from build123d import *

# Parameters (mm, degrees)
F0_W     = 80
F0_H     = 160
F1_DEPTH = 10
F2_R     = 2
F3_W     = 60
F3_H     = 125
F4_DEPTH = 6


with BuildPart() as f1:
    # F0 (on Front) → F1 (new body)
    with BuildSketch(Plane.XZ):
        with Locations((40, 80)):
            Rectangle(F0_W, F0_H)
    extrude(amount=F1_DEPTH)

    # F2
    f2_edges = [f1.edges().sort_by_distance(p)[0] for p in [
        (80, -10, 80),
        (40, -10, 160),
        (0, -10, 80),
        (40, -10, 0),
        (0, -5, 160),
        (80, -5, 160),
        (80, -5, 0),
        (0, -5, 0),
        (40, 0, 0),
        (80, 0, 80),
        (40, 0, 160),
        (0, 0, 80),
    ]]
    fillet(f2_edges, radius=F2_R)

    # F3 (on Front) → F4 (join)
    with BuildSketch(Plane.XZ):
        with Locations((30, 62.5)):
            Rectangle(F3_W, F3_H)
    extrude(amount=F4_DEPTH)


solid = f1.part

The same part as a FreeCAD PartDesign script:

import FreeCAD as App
import Part
import Sketcher


def add_polygon(sketch, points):
    """Adds a closed chain of lines whose ends are joined by coincident constraints."""
    first, n = sketch.GeometryCount, len(points)
    for a, b in zip(points, points[1:] + points[:1]):
        sketch.addGeometry(Part.LineSegment(App.Vector(*a, 0), App.Vector(*b, 0)), False)
    for i in range(n):
        sketch.addConstraint(Sketcher.Constraint("Coincident", first + i, 2, first + (i + 1) % n, 1))

doc = App.newDocument("Part")
body = doc.addObject("PartDesign::Body", "Body")

sketch1 = body.newObject("Sketcher::SketchObject", "Sketch")
sketch1.AttachmentSupport = (doc.getObject("XZ_Plane"), [""])
sketch1.MapMode = "FlatFace"
add_polygon(sketch1, [(0, 160), (0, 0), (80, 0), (80, 160)])
sketch1.addConstraint(Sketcher.Constraint("Vertical", 0))
sketch1.addConstraint(Sketcher.Constraint("Horizontal", 1))
sketch1.addConstraint(Sketcher.Constraint("Vertical", 2))
sketch1.addConstraint(Sketcher.Constraint("Horizontal", 3))
sketch1.addConstraint(Sketcher.Constraint("Coincident", 0, 2, -1, 1))
sketch1.addConstraint(Sketcher.Constraint("DistanceX", 1, 1, 1, 2, 80.0))
sketch1.addConstraint(Sketcher.Constraint("DistanceY", 0, 2, 0, 1, 160.0))
pad1 = body.newObject("PartDesign::Pad", "Pad")
pad1.Profile = sketch1
pad1.Length = 10
doc.recompute()

fillet = body.newObject("PartDesign::Fillet", "Fillet")
fillet.Base = (pad1, ["Edge1"])
fillet.UseAllEdges = True
fillet.Radius = 2

sketch2 = body.newObject("Sketcher::SketchObject", "Sketch001")
sketch2.AttachmentSupport = (doc.getObject("XZ_Plane"), [""])
sketch2.MapMode = "FlatFace"
add_polygon(sketch2, [(0, 125), (0, 0), (60, 0), (60, 125)])
sketch2.addConstraint(Sketcher.Constraint("Vertical", 0))
sketch2.addConstraint(Sketcher.Constraint("Horizontal", 1))
sketch2.addConstraint(Sketcher.Constraint("Vertical", 2))
sketch2.addConstraint(Sketcher.Constraint("Horizontal", 3))
sketch2.addConstraint(Sketcher.Constraint("Coincident", 0, 2, -1, 1))
sketch2.addConstraint(Sketcher.Constraint("DistanceX", 1, 1, 1, 2, 60.0))
sketch2.addConstraint(Sketcher.Constraint("DistanceY", 0, 2, 0, 1, 125.0))
pad2 = body.newObject("PartDesign::Pad", "Pad001")
pad2.Profile = sketch2
pad2.Length = 6

doc.recompute()
